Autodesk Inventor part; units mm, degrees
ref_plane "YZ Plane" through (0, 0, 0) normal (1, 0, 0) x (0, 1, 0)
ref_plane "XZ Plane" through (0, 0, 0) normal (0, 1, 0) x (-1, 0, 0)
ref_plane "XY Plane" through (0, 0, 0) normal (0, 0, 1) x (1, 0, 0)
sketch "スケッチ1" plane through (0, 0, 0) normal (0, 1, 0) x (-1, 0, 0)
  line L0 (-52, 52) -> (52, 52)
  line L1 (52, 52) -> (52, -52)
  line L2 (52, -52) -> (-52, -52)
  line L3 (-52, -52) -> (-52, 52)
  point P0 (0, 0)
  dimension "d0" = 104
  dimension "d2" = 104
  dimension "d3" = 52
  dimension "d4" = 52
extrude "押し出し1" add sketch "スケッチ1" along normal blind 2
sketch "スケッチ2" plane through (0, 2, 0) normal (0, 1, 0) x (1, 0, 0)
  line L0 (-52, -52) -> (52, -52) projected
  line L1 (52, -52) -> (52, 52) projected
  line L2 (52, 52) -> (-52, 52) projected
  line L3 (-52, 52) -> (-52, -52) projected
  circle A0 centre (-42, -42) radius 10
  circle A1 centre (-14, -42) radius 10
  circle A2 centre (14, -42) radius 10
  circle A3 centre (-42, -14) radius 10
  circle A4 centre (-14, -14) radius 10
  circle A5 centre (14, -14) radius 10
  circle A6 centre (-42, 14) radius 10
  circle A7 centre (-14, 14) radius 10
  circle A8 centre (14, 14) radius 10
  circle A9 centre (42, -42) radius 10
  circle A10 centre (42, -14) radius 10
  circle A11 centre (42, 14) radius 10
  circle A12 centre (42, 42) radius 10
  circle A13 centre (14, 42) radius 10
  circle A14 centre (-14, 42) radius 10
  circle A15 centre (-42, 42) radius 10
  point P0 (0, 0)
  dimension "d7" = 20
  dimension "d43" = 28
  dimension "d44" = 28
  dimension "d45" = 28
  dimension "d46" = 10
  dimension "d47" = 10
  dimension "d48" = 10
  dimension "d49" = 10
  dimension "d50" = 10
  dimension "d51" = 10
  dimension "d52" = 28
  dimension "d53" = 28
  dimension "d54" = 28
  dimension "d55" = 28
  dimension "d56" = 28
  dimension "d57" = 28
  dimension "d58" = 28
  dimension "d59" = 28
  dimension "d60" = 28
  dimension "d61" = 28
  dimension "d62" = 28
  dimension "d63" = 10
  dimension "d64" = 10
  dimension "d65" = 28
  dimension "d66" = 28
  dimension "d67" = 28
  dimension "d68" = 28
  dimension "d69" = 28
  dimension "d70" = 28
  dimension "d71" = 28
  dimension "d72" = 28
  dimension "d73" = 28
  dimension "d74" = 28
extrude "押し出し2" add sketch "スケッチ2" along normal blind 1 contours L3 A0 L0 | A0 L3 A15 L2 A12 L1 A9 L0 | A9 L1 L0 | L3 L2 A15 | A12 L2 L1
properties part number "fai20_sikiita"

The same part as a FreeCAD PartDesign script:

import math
import FreeCAD as App
import Part
import Sketcher
Q = App.Units.Quantity

doc = App.newDocument("Part")
params = doc.addObject("Spreadsheet::Sheet", "Params")
for row, (alias, value) in enumerate([
    ("sketch1_width", "104 mm"),
    ("pad1_length", "2 mm"),
    ("sketch2_diameter", "20 mm"),
    ("sketch2_width", "28 mm"),
    ("pad2_length", "1 mm"),
], start=1):
    params.set(f"A{row}", alias)
    params.set(f"B{row}", "=" + value)
    params.setAlias(f"B{row}", alias)

body = doc.addObject("PartDesign::Body", "Body")

# Sketch on XZ plane
sketch1 = body.newObject("Sketcher::SketchObject", "Sketch")
sketch1.AttachmentSupport = (doc.getObject("XZ_Plane"), [""])
sketch1.MapMode = "FlatFace"
sketch1.addGeometry([
    Part.LineSegment(App.Vector(-52, 52, 0), App.Vector(52, 52, 0)),
    Part.LineSegment(App.Vector(52, 52, 0), App.Vector(52, -52, 0)),
    Part.LineSegment(App.Vector(52, -52, 0), App.Vector(-52, -52, 0)),
    Part.LineSegment(App.Vector(-52, -52, 0), App.Vector(-52, 52, 0)),
], False)
sketch1.addConstraint([
    Sketcher.Constraint("Coincident", 0, 2, 1, 1),
    Sketcher.Constraint("Coincident", 1, 2, 2, 1),
    Sketcher.Constraint("Coincident", 2, 2, 3, 1),
    Sketcher.Constraint("Coincident", 3, 2, 0, 1),
    Sketcher.Constraint("Horizontal", 0),
    Sketcher.Constraint("Vertical", 1),
    Sketcher.Constraint("Horizontal", 2),
    Sketcher.Constraint("Vertical", 3),
    Sketcher.Constraint("Symmetric", 0, 2, 2, 2, -1, 1),
    Sketcher.Constraint("Equal", 2, 1),
    Sketcher.Constraint("DistanceX", 0, 1, 0, 2, Q("104 mm")),
])
sketch1.setExpression("Constraints[10]", "Params.sketch1_width")
pad1 = body.newObject("PartDesign::Pad", "Pad")
pad1.Profile = sketch1
pad1.setExpression("Length", "Params.pad1_length")
pad1.Reversed = True

# Sketch on XZ plane
sketch2 = body.newObject("Sketcher::SketchObject", "Sketch001")
sketch2.AttachmentSupport = (doc.getObject("XZ_Plane"), [""])
sketch2.MapMode = "FlatFace"
sketch2.AttachmentOffset = App.Placement(App.Vector(0, 0, -2), App.Rotation())
sketch2.addGeometry([
    Part.LineSegment(App.Vector(-52, 42, 0), App.Vector(-52, 52, 0)),  # 0
    Part.LineSegment(App.Vector(-52, 52, 0), App.Vector(-42, 52, 0)),  # 1
    Part.ArcOfCircle(Part.Circle(App.Vector(-42, 42, 0), App.Vector(0, 0, 1), 10), math.radians(90), math.radians(180)),  # 2
    Part.ArcOfCircle(Part.Circle(App.Vector(-42, 42, 0), App.Vector(0, 0, 1), 10), math.radians(180), math.radians(450)),  # 3
    Part.LineSegment(App.Vector(-42, 52, 0), App.Vector(-14, 52, 0)),  # 4
    Part.LineSegment(App.Vector(-14, 52, 0), App.Vector(14, 52, 0)),  # 5
    Part.LineSegment(App.Vector(14, 52, 0), App.Vector(42, 52, 0)),  # 6
    Part.ArcOfCircle(Part.Circle(App.Vector(42, 42, 0), App.Vector(0, 0, 1), 10), math.radians(90), math.radians(360)),  # 7
    Part.LineSegment(App.Vector(52, 42, 0), App.Vector(52, 14, 0)),  # 8
    Part.LineSegment(App.Vector(52, 14, 0), App.Vector(52, -14, 0)),  # 9
    Part.LineSegment(App.Vector(52, -14, 0), App.Vector(52, -42, 0)),  # 10
    Part.ArcOfCircle(Part.Circle(App.Vector(42, -42, 0), App.Vector(0, 0, 1), 10), math.radians(0), math.radians(270)),  # 11
    Part.LineSegment(App.Vector(42, -52, 0), App.Vector(14, -52, 0)),  # 12
    Part.LineSegment(App.Vector(14, -52, 0), App.Vector(-14, -52, 0)),  # 13
    Part.LineSegment(App.Vector(-14, -52, 0), App.Vector(-42, -52, 0)),  # 14
    Part.ArcOfCircle(Part.Circle(App.Vector(-42, -42, 0), App.Vector(0, 0, 1), 10), math.radians(-90), math.radians(180)),  # 15
    Part.LineSegment(App.Vector(-52, -42, 0), App.Vector(-52, -14, 0)),  # 16
    Part.LineSegment(App.Vector(-52, -14, 0), App.Vector(-52, 14, 0)),  # 17
    Part.LineSegment(App.Vector(-52, 14, 0), App.Vector(-52, 42, 0)),  # 18
    Part.Circle(App.Vector(-14, 42, 0), App.Vector(0, 0, 1), 10),  # 19
    Part.Circle(App.Vector(-42, 14, 0), App.Vector(0, 0, 1), 10),  # 20
    Part.Circle(App.Vector(-14, 14, 0), App.Vector(0, 0, 1), 10),  # 21
    Part.Circle(App.Vector(14, 42, 0), App.Vector(0, 0, 1), 10),  # 22
    Part.Circle(App.Vector(14, 14, 0), App.Vector(0, 0, 1), 10),  # 23
    Part.Circle(App.Vector(42, 14, 0), App.Vector(0, 0, 1), 10),  # 24
    Part.Circle(App.Vector(-42, -14, 0), App.Vector(0, 0, 1), 10),  # 25
    Part.Circle(App.Vector(-14, -14, 0), App.Vector(0, 0, 1), 10),  # 26
    Part.Circle(App.Vector(-14, -42, 0), App.Vector(0, 0, 1), 10),  # 27
    Part.Circle(App.Vector(14, -14, 0), App.Vector(0, 0, 1), 10),  # 28
    Part.Circle(App.Vector(42, -14, 0), App.Vector(0, 0, 1), 10),  # 29
    Part.Circle(App.Vector(14, -42, 0), App.Vector(0, 0, 1), 10),  # 30
    Part.ArcOfCircle(Part.Circle(App.Vector(42, 42, 0), App.Vector(0, 0, 1), 10), math.radians(0), math.radians(90)),  # 31
    Part.LineSegment(App.Vector(42, 52, 0), App.Vector(52, 52, 0)),  # 32
    Part.LineSegment(App.Vector(52, 52, 0), App.Vector(52, 42, 0)),  # 33
    Part.LineSegment(App.Vector(-52, -52, 0), App.Vector(-52, -42, 0)),  # 34
    Part.ArcOfCircle(Part.Circle(App.Vector(-42, -42, 0), App.Vector(0, 0, 1), 10), math.radians(180), math.radians(270)),  # 35
    Part.LineSegment(App.Vector(-42, -52, 0), App.Vector(-52, -52, 0)),  # 36
    Part.ArcOfCircle(Part.Circle(App.Vector(42, -42, 0), App.Vector(0, 0, 1), 10), math.radians(-90), math.radians(0)),  # 37
    Part.LineSegment(App.Vector(52, -42, 0), App.Vector(52, -52, 0)),  # 38
    Part.LineSegment(App.Vector(52, -52, 0), App.Vector(42, -52, 0)),  # 39
], False)
sketch2.addConstraint([
    Sketcher.Constraint("Coincident", 0, 2, 1, 1),
    Sketcher.Constraint("Tangent", 1, 2, 2, 1),
    Sketcher.Constraint("Tangent", 2, 2, 0, 1),
    Sketcher.Constraint("Tangent", 3, 2, 4, 1),
    Sketcher.Constraint("Coincident", 4, 2, 5, 1),
    Sketcher.Constraint("Coincident", 5, 2, 6, 1),
    Sketcher.Constraint("Tangent", 6, 2, 7, 1),
    Sketcher.Constraint("Tangent", 7, 2, 8, 1),
    Sketcher.Constraint("Coincident", 8, 2, 9, 1),
    Sketcher.Constraint("Coincident", 9, 2, 10, 1),
    Sketcher.Constraint("Tangent", 10, 2, 11, 1),
    Sketcher.Constraint("Tangent", 11, 2, 12, 1),
    Sketcher.Constraint("Coincident", 12, 2, 13, 1),
    Sketcher.Constraint("Coincident", 13, 2, 14, 1),
    Sketcher.Constraint("Tangent", 14, 2, 15, 1),
    Sketcher.Constraint("Tangent", 15, 2, 16, 1),
    Sketcher.Constraint("Coincident", 16, 2, 17, 1),
    Sketcher.Constraint("Coincident", 17, 2, 18, 1),
    Sketcher.Constraint("Tangent", 18, 2, 3, 1),
    Sketcher.Constraint("Tangent", 31, 2, 32, 1),
    Sketcher.Constraint("Coincident", 32, 2, 33, 1),
    Sketcher.Constraint("Tangent", 33, 2, 31, 1),
    Sketcher.Constraint("Tangent", 34, 2, 35, 1),
    Sketcher.Constraint("Tangent", 35, 2, 36, 1),
    Sketcher.Constraint("Coincident", 36, 2, 34, 1),
    Sketcher.Constraint("Tangent", 37, 2, 38, 1),
    Sketcher.Constraint("Coincident", 38, 2, 39, 1),
    Sketcher.Constraint("Tangent", 39, 2, 37, 1),
    Sketcher.Constraint("Vertical", 0),
    Sketcher.Constraint("Horizontal", 1),
    Sketcher.Constraint("Horizontal", 4),
    Sketcher.Constraint("Horizontal", 5),
    Sketcher.Constraint("Horizontal", 6),
    Sketcher.Constraint("Vertical", 8),
    Sketcher.Constraint("Vertical", 9),
    Sketcher.Constraint("Vertical", 10),
    Sketcher.Constraint("Horizontal", 12),
    Sketcher.Constraint("Horizontal", 13),
    Sketcher.Constraint("Horizontal", 14),
    Sketcher.Constraint("Vertical", 16),
    Sketcher.Constraint("Vertical", 17),
    Sketcher.Constraint("Vertical", 18),
    Sketcher.Constraint("Horizontal", 32),
    Sketcher.Constraint("Vertical", 33),
    Sketcher.Constraint("Vertical", 34),
    Sketcher.Constraint("Horizontal", 36),
    Sketcher.Constraint("Vertical", 38),
    Sketcher.Constraint("Horizontal", 39),
    Sketcher.Constraint("Coincident", 3, 3, 2, 3),
    Sketcher.Constraint("Coincident", 31, 3, 7, 3),
    Sketcher.Constraint("Coincident", 35, 3, 15, 3),
    Sketcher.Constraint("Coincident", 37, 3, 11, 3),
    Sketcher.Constraint("Equal", 2, 3),
    Sketcher.Constraint("Equal", 3, 7),
    Sketcher.Constraint("Equal", 7, 11),
    Sketcher.Constraint("Equal", 11, 15),
    Sketcher.Constraint("Equal", 15, 19),
    Sketcher.Constraint("Equal", 19, 20),
    Sketcher.Constraint("Equal", 20, 21),
    Sketcher.Constraint("Equal", 21, 22),
    Sketcher.Constraint("Equal", 22, 23),
    Sketcher.Constraint("Equal", 23, 24),
    Sketcher.Constraint("Equal", 24, 25),
    Sketcher.Constraint("Equal", 25, 26),
    Sketcher.Constraint("Equal", 26, 27),
    Sketcher.Constraint("Equal", 27, 28),
    Sketcher.Constraint("Equal", 28, 29),
    Sketcher.Constraint("Equal", 29, 30),
    Sketcher.Constraint("Equal", 30, 31),
    Sketcher.Constraint("Equal", 31, 35),
    Sketcher.Constraint("Equal", 35, 37),
    Sketcher.Constraint("Symmetric", 2, 3, 11, 3, -1, 1),
    Sketcher.Constraint("Symmetric", 24, 3, 25, 3, -1, 1),
    Sketcher.Constraint("Symmetric", 23, 3, 26, 3, -1, 1),
    Sketcher.Constraint("Symmetric", 22, 3, 27, 3, -1, 1),
    Sketcher.Constraint("Symmetric", 21, 3, 28, 3, -1, 1),
    Sketcher.Constraint("Symmetric", 20, 3, 29, 3, -1, 1),
    Sketcher.Constraint("Symmetric", 19, 3, 30, 3, -1, 1),
    Sketcher.Constraint("Symmetric", 19, 3, 22, 3, -2),
    Sketcher.Constraint("Symmetric", 21, 3, 23, 3, -2),
    Sketcher.Constraint("Symmetric", 20, 3, 24, 3, -2),
    Sketcher.Constraint("Horizontal", 7, 3, 19, 3),
    Sketcher.Constraint("Horizontal", 20, 3, 21, 3),
    Sketcher.Constraint("Horizontal", 24, 3, 8, 2),
    Sketcher.Constraint("Horizontal", 29, 3, 9, 2),
    Sketcher.Constraint("Horizontal", 9, 2, 16, 2),
    Sketcher.Constraint("Horizontal", 8, 2, 17, 2),
    Sketcher.Constraint("Vertical", 15, 3, 20, 3),
    Sketcher.Constraint("Vertical", 19, 3, 21, 3),
    Sketcher.Constraint("Vertical", 27, 3, 4, 2),
    Sketcher.Constraint("Vertical", 30, 3, 5, 2),
    Sketcher.Constraint("Vertical", 5, 2, 12, 2),
    Sketcher.Constraint("Vertical", 4, 2, 13, 2),
    Sketcher.Constraint("Equal", 4, 5),
    Sketcher.Constraint("Equal", 14, 8),
    Sketcher.Constraint("Equal", 8, 9),
    Sketcher.Constraint("Diameter", 19, Q("20 mm")),
    Sketcher.Constraint("DistanceX", 4, 1, 4, 2, Q("28 mm")),
])
sketch2.setExpression("Constraints[96]", "Params.sketch2_diameter")
sketch2.setExpression("Constraints[97]", "Params.sketch2_width")
pad2 = body.newObject("PartDesign::Pad", "Pad001")
pad2.Profile = sketch2
pad2.setExpression("Length", "Params.pad2_length")
pad2.Reversed = True

doc.recompute()
